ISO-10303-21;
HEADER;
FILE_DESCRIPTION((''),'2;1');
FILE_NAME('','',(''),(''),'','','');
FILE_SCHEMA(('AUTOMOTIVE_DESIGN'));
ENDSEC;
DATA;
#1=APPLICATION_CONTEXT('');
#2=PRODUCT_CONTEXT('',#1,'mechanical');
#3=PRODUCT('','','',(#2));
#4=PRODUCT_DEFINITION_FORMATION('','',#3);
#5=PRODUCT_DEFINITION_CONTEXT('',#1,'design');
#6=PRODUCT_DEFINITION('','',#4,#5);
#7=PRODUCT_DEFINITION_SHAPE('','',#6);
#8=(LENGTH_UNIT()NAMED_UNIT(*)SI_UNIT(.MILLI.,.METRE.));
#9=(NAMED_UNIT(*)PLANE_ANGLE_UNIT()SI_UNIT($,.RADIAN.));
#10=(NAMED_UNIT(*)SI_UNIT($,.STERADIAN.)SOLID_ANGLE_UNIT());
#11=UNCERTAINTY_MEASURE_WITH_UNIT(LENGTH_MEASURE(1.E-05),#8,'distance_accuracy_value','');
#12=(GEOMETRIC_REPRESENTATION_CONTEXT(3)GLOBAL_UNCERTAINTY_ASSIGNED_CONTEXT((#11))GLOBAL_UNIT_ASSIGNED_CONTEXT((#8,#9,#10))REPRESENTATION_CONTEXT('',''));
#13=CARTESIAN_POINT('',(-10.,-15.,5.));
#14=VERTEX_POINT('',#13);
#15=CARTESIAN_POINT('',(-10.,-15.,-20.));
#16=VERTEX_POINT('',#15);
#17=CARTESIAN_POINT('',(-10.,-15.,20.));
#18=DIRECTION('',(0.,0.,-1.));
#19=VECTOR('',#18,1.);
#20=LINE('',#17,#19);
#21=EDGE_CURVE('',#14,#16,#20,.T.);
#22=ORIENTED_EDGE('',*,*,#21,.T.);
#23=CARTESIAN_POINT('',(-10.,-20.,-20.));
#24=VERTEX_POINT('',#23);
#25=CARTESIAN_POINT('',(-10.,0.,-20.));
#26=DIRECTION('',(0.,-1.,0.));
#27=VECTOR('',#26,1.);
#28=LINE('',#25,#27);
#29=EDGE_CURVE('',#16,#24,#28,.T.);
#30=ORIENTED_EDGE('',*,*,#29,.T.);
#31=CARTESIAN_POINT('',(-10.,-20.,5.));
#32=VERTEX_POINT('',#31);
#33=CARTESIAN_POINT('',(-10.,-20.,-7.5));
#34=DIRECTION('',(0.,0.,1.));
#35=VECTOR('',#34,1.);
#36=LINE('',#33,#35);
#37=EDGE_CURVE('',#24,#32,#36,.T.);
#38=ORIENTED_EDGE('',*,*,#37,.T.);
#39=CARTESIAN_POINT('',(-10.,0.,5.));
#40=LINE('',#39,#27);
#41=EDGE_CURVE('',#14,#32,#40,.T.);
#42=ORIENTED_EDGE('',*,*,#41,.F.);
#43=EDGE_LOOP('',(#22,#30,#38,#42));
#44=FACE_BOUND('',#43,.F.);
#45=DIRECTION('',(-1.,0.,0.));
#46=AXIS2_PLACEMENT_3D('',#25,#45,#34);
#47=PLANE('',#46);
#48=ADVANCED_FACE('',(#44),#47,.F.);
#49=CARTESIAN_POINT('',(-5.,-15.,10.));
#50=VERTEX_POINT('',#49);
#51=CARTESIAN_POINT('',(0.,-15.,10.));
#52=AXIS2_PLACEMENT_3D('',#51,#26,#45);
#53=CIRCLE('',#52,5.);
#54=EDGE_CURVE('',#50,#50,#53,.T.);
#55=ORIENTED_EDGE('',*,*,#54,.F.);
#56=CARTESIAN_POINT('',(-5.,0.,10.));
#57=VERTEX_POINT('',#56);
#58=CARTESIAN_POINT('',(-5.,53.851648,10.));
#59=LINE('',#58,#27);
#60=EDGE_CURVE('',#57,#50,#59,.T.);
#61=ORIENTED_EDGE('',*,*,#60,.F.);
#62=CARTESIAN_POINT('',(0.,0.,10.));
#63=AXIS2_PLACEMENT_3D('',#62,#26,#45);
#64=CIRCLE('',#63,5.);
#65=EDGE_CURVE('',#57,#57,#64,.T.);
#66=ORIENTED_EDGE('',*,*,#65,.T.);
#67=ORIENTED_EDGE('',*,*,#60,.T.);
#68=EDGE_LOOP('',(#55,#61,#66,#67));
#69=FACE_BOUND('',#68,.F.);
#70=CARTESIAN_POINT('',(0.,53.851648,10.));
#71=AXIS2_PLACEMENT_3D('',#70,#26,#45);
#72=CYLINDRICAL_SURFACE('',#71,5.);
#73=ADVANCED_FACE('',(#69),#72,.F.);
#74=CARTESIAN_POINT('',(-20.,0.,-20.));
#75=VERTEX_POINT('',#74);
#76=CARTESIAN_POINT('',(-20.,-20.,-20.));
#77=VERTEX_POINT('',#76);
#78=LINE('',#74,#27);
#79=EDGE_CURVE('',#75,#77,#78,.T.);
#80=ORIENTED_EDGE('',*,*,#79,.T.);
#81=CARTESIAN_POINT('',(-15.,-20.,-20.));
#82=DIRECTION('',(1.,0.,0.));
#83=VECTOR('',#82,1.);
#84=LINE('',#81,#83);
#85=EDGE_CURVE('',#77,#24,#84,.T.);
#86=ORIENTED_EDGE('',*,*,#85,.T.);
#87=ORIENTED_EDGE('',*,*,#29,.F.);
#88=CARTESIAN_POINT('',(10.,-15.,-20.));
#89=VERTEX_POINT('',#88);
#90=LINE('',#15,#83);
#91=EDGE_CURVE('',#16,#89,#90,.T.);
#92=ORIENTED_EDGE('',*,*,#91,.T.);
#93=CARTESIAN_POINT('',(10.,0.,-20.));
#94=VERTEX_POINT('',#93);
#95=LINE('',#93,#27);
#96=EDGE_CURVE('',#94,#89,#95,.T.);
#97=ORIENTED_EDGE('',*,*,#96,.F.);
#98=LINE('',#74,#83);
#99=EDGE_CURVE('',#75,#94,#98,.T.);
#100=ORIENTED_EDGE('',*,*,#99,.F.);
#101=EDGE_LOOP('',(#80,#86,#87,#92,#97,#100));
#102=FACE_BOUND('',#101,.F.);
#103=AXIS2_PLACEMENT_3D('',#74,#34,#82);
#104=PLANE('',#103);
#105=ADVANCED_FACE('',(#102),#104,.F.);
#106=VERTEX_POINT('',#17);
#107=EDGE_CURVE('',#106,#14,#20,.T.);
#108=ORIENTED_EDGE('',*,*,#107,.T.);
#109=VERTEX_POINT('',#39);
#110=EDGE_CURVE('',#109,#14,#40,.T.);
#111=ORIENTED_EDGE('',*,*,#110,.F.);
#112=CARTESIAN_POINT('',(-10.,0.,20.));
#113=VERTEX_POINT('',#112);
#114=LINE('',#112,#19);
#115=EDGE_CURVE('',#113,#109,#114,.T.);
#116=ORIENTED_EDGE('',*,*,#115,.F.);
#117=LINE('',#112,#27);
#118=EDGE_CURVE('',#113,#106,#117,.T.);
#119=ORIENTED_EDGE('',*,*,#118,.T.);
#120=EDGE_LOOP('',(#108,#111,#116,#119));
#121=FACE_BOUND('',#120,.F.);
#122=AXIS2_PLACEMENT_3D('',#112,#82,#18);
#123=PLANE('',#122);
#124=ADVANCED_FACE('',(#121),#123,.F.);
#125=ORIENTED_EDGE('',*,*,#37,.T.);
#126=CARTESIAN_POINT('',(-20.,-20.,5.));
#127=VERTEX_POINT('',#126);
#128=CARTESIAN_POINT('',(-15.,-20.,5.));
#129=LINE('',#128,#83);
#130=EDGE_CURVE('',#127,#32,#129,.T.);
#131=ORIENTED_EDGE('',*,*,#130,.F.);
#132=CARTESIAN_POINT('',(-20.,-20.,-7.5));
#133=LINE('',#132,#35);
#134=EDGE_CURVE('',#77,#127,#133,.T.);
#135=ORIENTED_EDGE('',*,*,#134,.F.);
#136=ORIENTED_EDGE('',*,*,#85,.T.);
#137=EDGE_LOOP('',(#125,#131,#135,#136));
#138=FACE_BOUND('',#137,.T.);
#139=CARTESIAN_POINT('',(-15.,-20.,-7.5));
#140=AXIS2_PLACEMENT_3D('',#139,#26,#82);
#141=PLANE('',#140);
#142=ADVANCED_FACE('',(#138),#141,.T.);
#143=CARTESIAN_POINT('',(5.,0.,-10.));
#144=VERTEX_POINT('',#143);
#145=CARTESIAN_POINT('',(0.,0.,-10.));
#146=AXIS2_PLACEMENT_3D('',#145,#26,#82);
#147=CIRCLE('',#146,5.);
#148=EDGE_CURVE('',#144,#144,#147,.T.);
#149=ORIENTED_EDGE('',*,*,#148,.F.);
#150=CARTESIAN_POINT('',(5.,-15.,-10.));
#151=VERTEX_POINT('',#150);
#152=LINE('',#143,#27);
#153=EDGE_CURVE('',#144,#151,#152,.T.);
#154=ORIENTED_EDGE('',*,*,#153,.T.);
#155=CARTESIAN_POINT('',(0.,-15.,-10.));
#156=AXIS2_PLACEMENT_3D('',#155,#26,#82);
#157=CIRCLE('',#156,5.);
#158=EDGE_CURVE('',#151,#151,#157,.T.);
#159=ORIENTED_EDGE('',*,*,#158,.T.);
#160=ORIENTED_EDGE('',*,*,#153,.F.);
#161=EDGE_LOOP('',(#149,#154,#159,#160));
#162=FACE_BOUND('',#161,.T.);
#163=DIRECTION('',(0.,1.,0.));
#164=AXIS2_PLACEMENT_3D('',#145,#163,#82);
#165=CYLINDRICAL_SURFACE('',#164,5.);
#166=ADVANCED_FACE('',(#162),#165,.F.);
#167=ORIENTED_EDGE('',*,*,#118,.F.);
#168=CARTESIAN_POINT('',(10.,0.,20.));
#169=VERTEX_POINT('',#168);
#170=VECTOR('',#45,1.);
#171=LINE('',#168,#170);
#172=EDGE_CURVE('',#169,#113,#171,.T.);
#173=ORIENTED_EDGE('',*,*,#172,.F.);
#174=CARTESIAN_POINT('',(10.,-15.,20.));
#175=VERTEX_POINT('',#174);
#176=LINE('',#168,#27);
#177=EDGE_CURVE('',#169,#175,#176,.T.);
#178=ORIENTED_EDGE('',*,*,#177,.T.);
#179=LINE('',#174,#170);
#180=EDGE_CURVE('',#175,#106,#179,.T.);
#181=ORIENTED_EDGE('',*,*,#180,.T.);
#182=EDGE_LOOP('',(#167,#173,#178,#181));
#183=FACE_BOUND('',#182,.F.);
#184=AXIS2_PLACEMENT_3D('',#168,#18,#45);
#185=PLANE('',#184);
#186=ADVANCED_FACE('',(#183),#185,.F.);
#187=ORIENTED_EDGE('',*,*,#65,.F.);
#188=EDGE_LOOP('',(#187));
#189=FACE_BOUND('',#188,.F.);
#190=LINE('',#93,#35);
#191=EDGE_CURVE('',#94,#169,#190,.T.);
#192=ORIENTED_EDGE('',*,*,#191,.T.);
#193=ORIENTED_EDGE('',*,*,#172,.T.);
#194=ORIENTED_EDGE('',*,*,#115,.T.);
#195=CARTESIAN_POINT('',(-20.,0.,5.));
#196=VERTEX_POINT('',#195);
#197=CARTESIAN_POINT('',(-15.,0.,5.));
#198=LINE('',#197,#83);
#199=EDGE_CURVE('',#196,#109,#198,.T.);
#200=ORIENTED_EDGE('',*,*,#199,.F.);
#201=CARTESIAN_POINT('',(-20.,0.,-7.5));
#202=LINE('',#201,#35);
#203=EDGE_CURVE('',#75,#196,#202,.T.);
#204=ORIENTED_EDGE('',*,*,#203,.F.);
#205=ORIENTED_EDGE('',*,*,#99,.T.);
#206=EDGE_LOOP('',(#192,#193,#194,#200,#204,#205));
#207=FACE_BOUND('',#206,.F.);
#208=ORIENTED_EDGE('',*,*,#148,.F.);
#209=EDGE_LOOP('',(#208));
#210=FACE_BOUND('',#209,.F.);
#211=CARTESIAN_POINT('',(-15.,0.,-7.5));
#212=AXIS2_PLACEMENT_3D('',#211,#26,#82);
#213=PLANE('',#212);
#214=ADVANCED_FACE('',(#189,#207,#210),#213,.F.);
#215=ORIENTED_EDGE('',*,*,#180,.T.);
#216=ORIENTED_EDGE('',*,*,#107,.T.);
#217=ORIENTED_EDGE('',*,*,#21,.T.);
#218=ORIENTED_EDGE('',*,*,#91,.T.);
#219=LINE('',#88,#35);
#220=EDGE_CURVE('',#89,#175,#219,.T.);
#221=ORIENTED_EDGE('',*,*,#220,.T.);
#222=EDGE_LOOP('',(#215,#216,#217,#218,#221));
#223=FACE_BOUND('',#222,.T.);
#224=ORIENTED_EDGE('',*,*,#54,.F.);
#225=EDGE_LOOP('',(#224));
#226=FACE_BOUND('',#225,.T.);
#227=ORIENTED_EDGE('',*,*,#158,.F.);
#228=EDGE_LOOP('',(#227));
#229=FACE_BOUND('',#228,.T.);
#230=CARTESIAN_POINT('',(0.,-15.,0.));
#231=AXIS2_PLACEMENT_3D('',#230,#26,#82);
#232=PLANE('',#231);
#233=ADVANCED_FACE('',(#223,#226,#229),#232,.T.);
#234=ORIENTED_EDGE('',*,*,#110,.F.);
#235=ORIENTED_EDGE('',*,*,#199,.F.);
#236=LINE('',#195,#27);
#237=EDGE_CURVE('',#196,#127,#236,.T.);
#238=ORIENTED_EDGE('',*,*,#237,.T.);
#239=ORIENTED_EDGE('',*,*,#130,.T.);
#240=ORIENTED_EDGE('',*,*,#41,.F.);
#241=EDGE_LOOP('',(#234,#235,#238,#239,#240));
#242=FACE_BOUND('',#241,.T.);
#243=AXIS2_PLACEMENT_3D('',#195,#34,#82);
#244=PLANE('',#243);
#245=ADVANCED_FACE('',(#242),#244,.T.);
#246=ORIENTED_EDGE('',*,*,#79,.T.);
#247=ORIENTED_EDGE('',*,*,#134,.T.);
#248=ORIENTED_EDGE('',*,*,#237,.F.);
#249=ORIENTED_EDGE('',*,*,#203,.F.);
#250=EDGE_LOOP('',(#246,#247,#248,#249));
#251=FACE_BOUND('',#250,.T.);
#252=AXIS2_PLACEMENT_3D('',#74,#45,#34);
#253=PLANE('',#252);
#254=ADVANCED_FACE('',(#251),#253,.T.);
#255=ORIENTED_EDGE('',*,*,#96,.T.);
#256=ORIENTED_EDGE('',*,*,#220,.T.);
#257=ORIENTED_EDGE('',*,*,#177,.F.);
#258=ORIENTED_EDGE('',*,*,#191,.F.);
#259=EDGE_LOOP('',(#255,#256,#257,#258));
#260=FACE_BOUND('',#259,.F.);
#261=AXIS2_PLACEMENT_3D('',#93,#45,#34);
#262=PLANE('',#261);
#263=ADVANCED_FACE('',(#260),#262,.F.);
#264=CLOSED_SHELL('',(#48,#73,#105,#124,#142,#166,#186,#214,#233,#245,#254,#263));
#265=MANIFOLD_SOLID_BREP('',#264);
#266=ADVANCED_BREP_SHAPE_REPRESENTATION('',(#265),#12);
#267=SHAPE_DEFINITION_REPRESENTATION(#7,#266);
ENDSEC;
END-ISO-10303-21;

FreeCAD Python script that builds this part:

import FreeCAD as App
import Part
import Sketcher
from FreeCAD import Vector

doc = App.newDocument("Part")
body = doc.addObject("PartDesign::Body", "Body")

# Sketch on XZ plane
sketch1 = body.newObject("Sketcher::SketchObject", "Sketch")
sketch1.AttachmentSupport = (doc.getObject("XZ_Plane"), [""])
sketch1.MapMode = "FlatFace"
sketch1.addGeometry([
    Part.LineSegment(Vector(10, 20, 0), Vector(-10, 20, 0)),  # 0
    Part.LineSegment(Vector(-10, 20, 0), Vector(-10, -20, 0)),  # 1
    Part.LineSegment(Vector(-10, -20, 0), Vector(10, -20, 0)),  # 2
    Part.LineSegment(Vector(10, -20, 0), Vector(10, 20, 0)),  # 3
    Part.Circle(Vector(0, -10, 0), Vector(0, 0, 1), 5),  # 4
], False)
sketch1.addConstraint([
    Sketcher.Constraint("Coincident", 0, 2, 1, 1),
    Sketcher.Constraint("Coincident", 1, 2, 2, 1),
    Sketcher.Constraint("Coincident", 2, 2, 3, 1),
    Sketcher.Constraint("Coincident", 3, 2, 0, 1),
    Sketcher.Constraint("Horizontal", 0),
    Sketcher.Constraint("Vertical", 1),
    Sketcher.Constraint("Horizontal", 2),
    Sketcher.Constraint("Vertical", 3),
    Sketcher.Constraint("Symmetric", 0, 2, 2, 2, -1, 1),
    Sketcher.Constraint("PointOnObject", 4, 3, -2),
    Sketcher.Constraint("Diameter", 4, 10.0),
    Sketcher.Constraint("DistanceX", 0, 2, 0, 1, 20.0),
    Sketcher.Constraint("DistanceY", 1, 2, 1, 1, 40.0),
    Sketcher.Constraint("DistanceY", 4, 3, -1, 1, 10.0),
])
pad1 = body.newObject("PartDesign::Pad", "Pad")
pad1.Profile = sketch1
pad1.Length = 15

# Sketch on XZ plane
sketch2 = body.newObject("Sketcher::SketchObject", "Sketch001")
sketch2.AttachmentSupport = (doc.getObject("XZ_Plane"), [""])
sketch2.MapMode = "FlatFace"
sketch2.addGeometry([
    Part.LineSegment(Vector(-20, 5, 0), Vector(-20, -20, 0)),
    Part.LineSegment(Vector(-20, -20, 0), Vector(-10, -20, 0)),
    Part.LineSegment(Vector(-10, -20, 0), Vector(-10, 5, 0)),
    Part.LineSegment(Vector(-10, 5, 0), Vector(-20, 5, 0)),
], False)
sketch2.addConstraint([
    Sketcher.Constraint("Coincident", 0, 2, 1, 1),
    Sketcher.Constraint("Coincident", 1, 2, 2, 1),
    Sketcher.Constraint("Coincident", 2, 2, 3, 1),
    Sketcher.Constraint("Coincident", 3, 2, 0, 1),
    Sketcher.Constraint("Vertical", 0),
    Sketcher.Constraint("Horizontal", 1),
    Sketcher.Constraint("Vertical", 2),
    Sketcher.Constraint("Horizontal", 3),
    Sketcher.Constraint("DistanceX", 1, 1, 1, 2, 10.0),
    Sketcher.Constraint("DistanceY", 0, 2, 0, 1, 25.0),
    Sketcher.Constraint("DistanceX", 0, 2, -1, 1, 20.0),
    Sketcher.Constraint("DistanceY", 0, 2, -1, 1, 20.0),
])
pad2 = body.newObject("PartDesign::Pad", "Pad001")
pad2.Profile = sketch2
pad2.Length = 20

# Sketch on XZ plane
sketch3 = body.newObject("Sketcher::SketchObject", "Sketch002")
sketch3.AttachmentSupport = (doc.getObject("XZ_Plane"), [""])
sketch3.MapMode = "FlatFace"
sketch3.addGeometry(Part.Circle(Vector(0, 10, 0), Vector(0, 0, 1), 5), False)
sketch3.addConstraint([
    Sketcher.Constraint("PointOnObject", 0, 3, -2),
    Sketcher.Constraint("Diameter", 0, 10.0),
    Sketcher.Constraint("DistanceY", -1, 1, 0, 3, 10.0),
])
pocket1 = body.newObject("PartDesign::Pocket", "Pocket")
pocket1.Profile = sketch3
pocket1.Length = 25

# Sketch on XZ plane
sketch4 = body.newObject("Sketcher::SketchObject", "Sketch003")
sketch4.AttachmentSupport = (doc.getObject("XZ_Plane"), [""])
sketch4.MapMode = "FlatFace"
sketch4.addGeometry(Part.Circle(Vector(0, 10, 0), Vector(0, 0, 1), 5), False)
sketch4.addConstraint([
    Sketcher.Constraint("PointOnObject", 0, 3, -2),
    Sketcher.Constraint("Diameter", 0, 10.0),
    Sketcher.Constraint("DistanceY", -1, 1, 0, 3, 10.0),
])
doc.recompute()
hole = body.newObject("PartDesign::Hole", "Hole")
hole.Profile = sketch4
hole.ThreadType = "None"
hole.Diameter = 10
hole.DepthType = "ThroughAll"
hole.Reversed = True

doc.recompute()
